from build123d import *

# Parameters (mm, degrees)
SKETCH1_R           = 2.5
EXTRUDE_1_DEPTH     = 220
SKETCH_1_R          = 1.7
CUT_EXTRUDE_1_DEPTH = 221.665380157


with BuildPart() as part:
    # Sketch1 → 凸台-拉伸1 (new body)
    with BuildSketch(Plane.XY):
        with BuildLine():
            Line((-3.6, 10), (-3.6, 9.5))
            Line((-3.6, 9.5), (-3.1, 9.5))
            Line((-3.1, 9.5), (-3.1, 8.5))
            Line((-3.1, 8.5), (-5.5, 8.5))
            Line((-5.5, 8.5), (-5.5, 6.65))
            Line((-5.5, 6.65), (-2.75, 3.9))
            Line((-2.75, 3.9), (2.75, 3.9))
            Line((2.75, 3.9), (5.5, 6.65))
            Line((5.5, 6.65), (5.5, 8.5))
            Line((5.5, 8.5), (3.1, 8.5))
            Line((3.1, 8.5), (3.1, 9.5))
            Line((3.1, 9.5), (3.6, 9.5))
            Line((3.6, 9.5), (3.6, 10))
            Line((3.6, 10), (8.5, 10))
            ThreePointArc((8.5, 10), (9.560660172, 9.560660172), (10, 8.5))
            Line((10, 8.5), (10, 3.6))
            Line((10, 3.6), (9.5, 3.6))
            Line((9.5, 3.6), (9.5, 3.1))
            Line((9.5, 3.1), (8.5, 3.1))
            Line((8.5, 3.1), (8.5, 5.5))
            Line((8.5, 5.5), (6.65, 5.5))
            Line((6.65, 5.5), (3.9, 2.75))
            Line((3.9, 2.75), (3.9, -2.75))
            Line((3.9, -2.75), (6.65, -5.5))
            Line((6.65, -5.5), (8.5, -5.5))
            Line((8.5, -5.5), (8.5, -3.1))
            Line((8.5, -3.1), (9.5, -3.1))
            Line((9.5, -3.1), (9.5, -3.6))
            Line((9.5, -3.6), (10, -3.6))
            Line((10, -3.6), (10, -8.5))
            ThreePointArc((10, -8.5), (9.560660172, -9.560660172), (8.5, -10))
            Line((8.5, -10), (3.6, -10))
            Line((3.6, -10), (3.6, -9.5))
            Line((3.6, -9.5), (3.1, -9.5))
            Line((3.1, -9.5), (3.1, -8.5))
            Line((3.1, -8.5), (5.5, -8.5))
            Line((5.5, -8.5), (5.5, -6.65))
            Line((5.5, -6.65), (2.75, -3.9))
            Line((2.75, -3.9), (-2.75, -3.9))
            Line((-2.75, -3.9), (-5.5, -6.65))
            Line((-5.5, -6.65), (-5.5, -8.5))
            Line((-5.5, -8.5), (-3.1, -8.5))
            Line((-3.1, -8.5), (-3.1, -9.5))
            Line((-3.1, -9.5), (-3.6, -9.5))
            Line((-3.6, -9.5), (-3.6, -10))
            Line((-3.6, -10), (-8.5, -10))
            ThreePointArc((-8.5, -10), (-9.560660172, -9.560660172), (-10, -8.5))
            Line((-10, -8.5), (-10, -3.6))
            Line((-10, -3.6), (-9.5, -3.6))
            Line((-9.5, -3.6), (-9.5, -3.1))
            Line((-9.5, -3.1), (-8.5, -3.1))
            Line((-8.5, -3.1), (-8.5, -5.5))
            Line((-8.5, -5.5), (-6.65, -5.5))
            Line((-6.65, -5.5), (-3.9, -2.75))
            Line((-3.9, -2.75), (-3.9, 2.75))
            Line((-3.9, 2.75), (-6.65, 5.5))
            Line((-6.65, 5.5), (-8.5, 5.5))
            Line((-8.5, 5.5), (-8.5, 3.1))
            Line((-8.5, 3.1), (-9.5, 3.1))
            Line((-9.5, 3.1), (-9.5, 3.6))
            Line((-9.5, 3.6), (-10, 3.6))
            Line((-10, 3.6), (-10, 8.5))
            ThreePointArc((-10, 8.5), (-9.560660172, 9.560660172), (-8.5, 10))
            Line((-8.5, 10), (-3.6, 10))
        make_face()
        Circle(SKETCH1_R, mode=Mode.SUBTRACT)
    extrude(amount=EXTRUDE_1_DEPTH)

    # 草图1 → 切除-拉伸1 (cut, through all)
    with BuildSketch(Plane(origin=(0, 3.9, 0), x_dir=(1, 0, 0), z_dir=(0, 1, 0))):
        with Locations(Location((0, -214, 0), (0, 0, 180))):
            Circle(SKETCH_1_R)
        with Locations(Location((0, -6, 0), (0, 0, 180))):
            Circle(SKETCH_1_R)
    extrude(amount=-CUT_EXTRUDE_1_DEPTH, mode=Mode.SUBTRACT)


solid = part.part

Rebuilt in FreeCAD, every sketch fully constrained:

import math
import FreeCAD as App
import Part
import Sketcher

V = App.Vector
Q = App.Units.Quantity

doc = App.newDocument("Part")
body = doc.addObject("PartDesign::Body", "Body")

sketch1 = body.newObject("Sketcher::SketchObject", "Sketch")
sketch1.AttachmentSupport = (doc.getObject("XY_Plane"), [""])
sketch1.MapMode = "FlatFace"
sketch1.addGeometry(Part.LineSegment(V(-3.6, 9.5, 0), V(-3.6, 10, 0)), False)
sketch1.addGeometry(Part.LineSegment(V(-3.6, 10, 0), V(-8.5, 10, 0)), False)
sketch1.addGeometry(Part.ArcOfCircle(Part.Circle(V(-8.5, 8.5, 0), V(0, 0, 1), 1.5), math.radians(90), math.radians(180)), False)
sketch1.addGeometry(Part.LineSegment(V(-10, 8.5, 0), V(-10, 3.6, 0)), False)
sketch1.addGeometry(Part.LineSegment(V(-10, 3.6, 0), V(-9.5, 3.6, 0)), False)
sketch1.addGeometry(Part.LineSegment(V(-9.5, 3.6, 0), V(-9.5, 3.1, 0)), False)
sketch1.addGeometry(Part.LineSegment(V(-9.5, 3.1, 0), V(-8.5, 3.1, 0)), False)
sketch1.addGeometry(Part.LineSegment(V(-8.5, 3.1, 0), V(-8.5, 5.5, 0)), False)
sketch1.addGeometry(Part.LineSegment(V(-8.5, 5.5, 0), V(-6.7, 5.5, 0)), False)
sketch1.addGeometry(Part.LineSegment(V(-6.7, 5.5, 0), V(-3.9, 2.8, 0)), False)
sketch1.addGeometry(Part.LineSegment(V(-3.9, 2.8, 0), V(-3.9, -2.8, 0)), False)
sketch1.addGeometry(Part.LineSegment(V(-3.9, -2.8, 0), V(-6.7, -5.5, 0)), False)
sketch1.addGeometry(Part.LineSegment(V(-6.7, -5.5, 0), V(-8.5, -5.5, 0)), False)
sketch1.addGeometry(Part.LineSegment(V(-8.5, -5.5, 0), V(-8.5, -3.1, 0)), False)
sketch1.addGeometry(Part.LineSegment(V(-8.5, -3.1, 0), V(-9.5, -3.1, 0)), False)
sketch1.addGeometry(Part.LineSegment(V(-9.5, -3.1, 0), V(-9.5, -3.6, 0)), False)
sketch1.addGeometry(Part.LineSegment(V(-9.5, -3.6, 0), V(-10, -3.6, 0)), False)
sketch1.addGeometry(Part.LineSegment(V(-10, -3.6, 0), V(-10, -8.5, 0)), False)
sketch1.addGeometry(Part.ArcOfCircle(Part.Circle(V(-8.5, -8.5, 0), V(0, 0, 1), 1.5), math.radians(180), math.radians(270)), False)
sketch1.addGeometry(Part.LineSegment(V(-8.5, -10, 0), V(-3.6, -10, 0)), False)
sketch1.addGeometry(Part.LineSegment(V(-3.6, -10, 0), V(-3.6, -9.5, 0)), False)
sketch1.addGeometry(Part.LineSegment(V(-3.6, -9.5, 0), V(-3.1, -9.5, 0)), False)
sketch1.addGeometry(Part.LineSegment(V(-3.1, -9.5, 0), V(-3.1, -8.5, 0)), False)
sketch1.addGeometry(Part.LineSegment(V(-3.1, -8.5, 0), V(-5.5, -8.5, 0)), False)
sketch1.addGeometry(Part.LineSegment(V(-5.5, -8.5, 0), V(-5.5, -6.7, 0)), False)
sketch1.addGeometry(Part.LineSegment(V(-5.5, -6.7, 0), V(-2.8, -3.9, 0)), False)
sketch1.addGeometry(Part.LineSegment(V(-2.8, -3.9, 0), V(2.8, -3.9, 0)), False)
sketch1.addGeometry(Part.LineSegment(V(2.8, -3.9, 0), V(5.5, -6.7, 0)), False)
sketch1.addGeometry(Part.LineSegment(V(5.5, -6.7, 0), V(5.5, -8.5, 0)), False)
sketch1.addGeometry(Part.LineSegment(V(5.5, -8.5, 0), V(3.1, -8.5, 0)), False)
sketch1.addGeometry(Part.LineSegment(V(3.1, -8.5, 0), V(3.1, -9.5, 0)), False)
sketch1.addGeometry(Part.LineSegment(V(3.1, -9.5, 0), V(3.6, -9.5, 0)), False)
sketch1.addGeometry(Part.LineSegment(V(3.6, -9.5, 0), V(3.6, -10, 0)), False)
sketch1.addGeometry(Part.LineSegment(V(3.6, -10, 0), V(8.5, -10, 0)), False)
sketch1.addGeometry(Part.ArcOfCircle(Part.Circle(V(8.5, -8.5, 0), V(0, 0, 1), 1.5), math.radians(-90), math.radians(0)), False)
sketch1.addGeometry(Part.LineSegment(V(10, -8.5, 0), V(10, -3.6, 0)), False)
sketch1.addGeometry(Part.LineSegment(V(10, -3.6, 0), V(9.5, -3.6, 0)), False)
sketch1.addGeometry(Part.LineSegment(V(9.5, -3.6, 0), V(9.5, -3.1, 0)), False)
sketch1.addGeometry(Part.LineSegment(V(9.5, -3.1, 0), V(8.5, -3.1, 0)), False)
sketch1.addGeometry(Part.LineSegment(V(8.5, -3.1, 0), V(8.5, -5.5, 0)), False)
sketch1.addGeometry(Part.LineSegment(V(8.5, -5.5, 0), V(6.7, -5.5, 0)), False)
sketch1.addGeometry(Part.LineSegment(V(6.7, -5.5, 0), V(3.9, -2.8, 0)), False)
sketch1.addGeometry(Part.LineSegment(V(3.9, -2.8, 0), V(3.9, 2.8, 0)), False)
sketch1.addGeometry(Part.LineSegment(V(3.9, 2.8, 0), V(6.7, 5.5, 0)), False)
sketch1.addGeometry(Part.LineSegment(V(6.7, 5.5, 0), V(8.5, 5.5, 0)), False)
sketch1.addGeometry(Part.LineSegment(V(8.5, 5.5, 0), V(8.5, 3.1, 0)), False)
sketch1.addGeometry(Part.LineSegment(V(8.5, 3.1, 0), V(9.5, 3.1, 0)), False)
sketch1.addGeometry(Part.LineSegment(V(9.5, 3.1, 0), V(9.5, 3.6, 0)), False)
sketch1.addGeometry(Part.LineSegment(V(9.5, 3.6, 0), V(10, 3.6, 0)), False)
sketch1.addGeometry(Part.LineSegment(V(10, 3.6, 0), V(10, 8.5, 0)), False)
sketch1.addGeometry(Part.ArcOfCircle(Part.Circle(V(8.5, 8.5, 0), V(0, 0, 1), 1.5), math.radians(0), math.radians(90)), False)
sketch1.addGeometry(Part.LineSegment(V(8.5, 10, 0), V(3.6, 10, 0)), False)
sketch1.addGeometry(Part.LineSegment(V(3.6, 10, 0), V(3.6, 9.5, 0)), False)
sketch1.addGeometry(Part.LineSegment(V(3.6, 9.5, 0), V(3.1, 9.5, 0)), False)
sketch1.addGeometry(Part.LineSegment(V(3.1, 9.5, 0), V(3.1, 8.5, 0)), False)
sketch1.addGeometry(Part.LineSegment(V(3.1, 8.5, 0), V(5.5, 8.5, 0)), False)
sketch1.addGeometry(Part.LineSegment(V(5.5, 8.5, 0), V(5.5, 6.7, 0)), False)
sketch1.addGeometry(Part.LineSegment(V(5.5, 6.7, 0), V(2.8, 3.9, 0)), False)
sketch1.addGeometry(Part.LineSegment(V(2.8, 3.9, 0), V(-2.8, 3.9, 0)), False)
sketch1.addGeometry(Part.LineSegment(V(-2.8, 3.9, 0), V(-5.5, 6.7, 0)), False)
sketch1.addGeometry(Part.LineSegment(V(-5.5, 6.7, 0), V(-5.5, 8.5, 0)), False)
sketch1.addGeometry(Part.LineSegment(V(-5.5, 8.5, 0), V(-3.1, 8.5, 0)), False)
sketch1.addGeometry(Part.LineSegment(V(-3.1, 8.5, 0), V(-3.1, 9.5, 0)), False)
sketch1.addGeometry(Part.LineSegment(V(-3.1, 9.5, 0), V(-3.6, 9.5, 0)), False)
sketch1.addGeometry(Part.Circle(V(0, 0, 0), V(0, 0, 1), 2.5), False)
sketch1.addConstraint(Sketcher.Constraint("Coincident", 0, 2, 1, 1))
sketch1.addConstraint(Sketcher.Constraint("Tangent", 1, 2, 2, 1))
sketch1.addConstraint(Sketcher.Constraint("Tangent", 2, 2, 3, 1))
sketch1.addConstraint(Sketcher.Constraint("Coincident", 3, 2, 4, 1))
sketch1.addConstraint(Sketcher.Constraint("Coincident", 4, 2, 5, 1))
sketch1.addConstraint(Sketcher.Constraint("Coincident", 5, 2, 6, 1))
sketch1.addConstraint(Sketcher.Constraint("Coincident", 6, 2, 7, 1))
sketch1.addConstraint(Sketcher.Constraint("Coincident", 7, 2, 8, 1))
sketch1.addConstraint(Sketcher.Constraint("Coincident", 8, 2, 9, 1))
sketch1.addConstraint(Sketcher.Constraint("Coincident", 9, 2, 10, 1))
sketch1.addConstraint(Sketcher.Constraint("Coincident", 10, 2, 11, 1))
sketch1.addConstraint(Sketcher.Constraint("Coincident", 11, 2, 12, 1))
sketch1.addConstraint(Sketcher.Constraint("Coincident", 12, 2, 13, 1))
sketch1.addConstraint(Sketcher.Constraint("Coincident", 13, 2, 14, 1))
sketch1.addConstraint(Sketcher.Constraint("Coincident", 14, 2, 15, 1))
sketch1.addConstraint(Sketcher.Constraint("Coincident", 15, 2, 16, 1))
sketch1.addConstraint(Sketcher.Constraint("Coincident", 16, 2, 17, 1))
sketch1.addConstraint(Sketcher.Constraint("Tangent", 17, 2, 18, 1))
sketch1.addConstraint(Sketcher.Constraint("Tangent", 18, 2, 19, 1))
sketch1.addConstraint(Sketcher.Constraint("Coincident", 19, 2, 20, 1))
sketch1.addConstraint(Sketcher.Constraint("Coincident", 20, 2, 21, 1))
sketch1.addConstraint(Sketcher.Constraint("Coincident", 21, 2, 22, 1))
sketch1.addConstraint(Sketcher.Constraint("Coincident", 22, 2, 23, 1))
sketch1.addConstraint(Sketcher.Constraint("Coincident", 23, 2, 24, 1))
sketch1.addConstraint(Sketcher.Constraint("Coincident", 24, 2, 25, 1))
sketch1.addConstraint(Sketcher.Constraint("Coincident", 25, 2, 26, 1))
sketch1.addConstraint(Sketcher.Constraint("Coincident", 26, 2, 27, 1))
sketch1.addConstraint(Sketcher.Constraint("Coincident", 27, 2, 28, 1))
sketch1.addConstraint(Sketcher.Constraint("Coincident", 28, 2, 29, 1))
sketch1.addConstraint(Sketcher.Constraint("Coincident", 29, 2, 30, 1))
sketch1.addConstraint(Sketcher.Constraint("Coincident", 30, 2, 31, 1))
sketch1.addConstraint(Sketcher.Constraint("Coincident", 31, 2, 32, 1))
sketch1.addConstraint(Sketcher.Constraint("Coincident", 32, 2, 33, 1))
sketch1.addConstraint(Sketcher.Constraint("Tangent", 33, 2, 34, 1))
sketch1.addConstraint(Sketcher.Constraint("Tangent", 34, 2, 35, 1))
sketch1.addConstraint(Sketcher.Constraint("Coincident", 35, 2, 36, 1))
sketch1.addConstraint(Sketcher.Constraint("Coincident", 36, 2, 37, 1))
sketch1.addConstraint(Sketcher.Constraint("Coincident", 37, 2, 38, 1))
sketch1.addConstraint(Sketcher.Constraint("Coincident", 38, 2, 39, 1))
sketch1.addConstraint(Sketcher.Constraint("Coincident", 39, 2, 40, 1))
sketch1.addConstraint(Sketcher.Constraint("Coincident", 40, 2, 41, 1))
sketch1.addConstraint(Sketcher.Constraint("Coincident", 41, 2, 42, 1))
sketch1.addConstraint(Sketcher.Constraint("Coincident", 42, 2, 43, 1))
sketch1.addConstraint(Sketcher.Constraint("Coincident", 43, 2, 44, 1))
sketch1.addConstraint(Sketcher.Constraint("Coincident", 44, 2, 45, 1))
sketch1.addConstraint(Sketcher.Constraint("Coincident", 45, 2, 46, 1))
sketch1.addConstraint(Sketcher.Constraint("Coincident", 46, 2, 47, 1))
sketch1.addConstraint(Sketcher.Constraint("Coincident", 47, 2, 48, 1))
sketch1.addConstraint(Sketcher.Constraint("Coincident", 48, 2, 49, 1))
sketch1.addConstraint(Sketcher.Constraint("Tangent", 49, 2, 50, 1))
sketch1.addConstraint(Sketcher.Constraint("Tangent", 50, 2, 51, 1))
sketch1.addConstraint(Sketcher.Constraint("Coincident", 51, 2, 52, 1))
sketch1.addConstraint(Sketcher.Constraint("Coincident", 52, 2, 53, 1))
sketch1.addConstraint(Sketcher.Constraint("Coincident", 53, 2, 54, 1))
sketch1.addConstraint(Sketcher.Constraint("Coincident", 54, 2, 55, 1))
sketch1.addConstraint(Sketcher.Constraint("Coincident", 55, 2, 56, 1))
sketch1.addConstraint(Sketcher.Constraint("Coincident", 56, 2, 57, 1))
sketch1.addConstraint(Sketcher.Constraint("Coincident", 57, 2, 58, 1))
sketch1.addConstraint(Sketcher.Constraint("Coincident", 58, 2, 59, 1))
sketch1.addConstraint(Sketcher.Constraint("Coincident", 59, 2, 60, 1))
sketch1.addConstraint(Sketcher.Constraint("Coincident", 60, 2, 61, 1))
sketch1.addConstraint(Sketcher.Constraint("Coincident", 61, 2, 62, 1))
sketch1.addConstraint(Sketcher.Constraint("Coincident", 62, 2, 63, 1))
sketch1.addConstraint(Sketcher.Constraint("Coincident", 63, 2, 0, 1))
sketch1.addConstraint(Sketcher.Constraint("Vertical", 0))
sketch1.addConstraint(Sketcher.Constraint("Horizontal", 1))
sketch1.addConstraint(Sketcher.Constraint("Vertical", 3))
sketch1.addConstraint(Sketcher.Constraint("Horizontal", 4))
sketch1.addConstraint(Sketcher.Constraint("Vertical", 5))
sketch1.addConstraint(Sketcher.Constraint("Horizontal", 6))
sketch1.addConstraint(Sketcher.Constraint("Vertical", 7))
sketch1.addConstraint(Sketcher.Constraint("Horizontal", 8))
sketch1.addConstraint(Sketcher.Constraint("Vertical", 10))
sketch1.addConstraint(Sketcher.Constraint("Horizontal", 12))
sketch1.addConstraint(Sketcher.Constraint("Vertical", 13))
sketch1.addConstraint(Sketcher.Constraint("Horizontal", 14))
sketch1.addConstraint(Sketcher.Constraint("Vertical", 15))
sketch1.addConstraint(Sketcher.Constraint("Horizontal", 16))
sketch1.addConstraint(Sketcher.Constraint("Vertical", 17))
sketch1.addConstraint(Sketcher.Constraint("Horizontal", 19))
sketch1.addConstraint(Sketcher.Constraint("Vertical", 20))
sketch1.addConstraint(Sketcher.Constraint("Horizontal", 21))
sketch1.addConstraint(Sketcher.Constraint("Vertical", 22))
sketch1.addConstraint(Sketcher.Constraint("Horizontal", 23))
sketch1.addConstraint(Sketcher.Constraint("Vertical", 24))
sketch1.addConstraint(Sketcher.Constraint("Horizontal", 26))
sketch1.addConstraint(Sketcher.Constraint("Vertical", 28))
sketch1.addConstraint(Sketcher.Constraint("Horizontal", 29))
sketch1.addConstraint(Sketcher.Constraint("Vertical", 30))
sketch1.addConstraint(Sketcher.Constraint("Horizontal", 31))
sketch1.addConstraint(Sketcher.Constraint("Vertical", 32))
sketch1.addConstraint(Sketcher.Constraint("Horizontal", 33))
sketch1.addConstraint(Sketcher.Constraint("Vertical", 35))
sketch1.addConstraint(Sketcher.Constraint("Horizontal", 36))
sketch1.addConstraint(Sketcher.Constraint("Vertical", 37))
sketch1.addConstraint(Sketcher.Constraint("Horizontal", 38))
sketch1.addConstraint(Sketcher.Constraint("Vertical", 39))
sketch1.addConstraint(Sketcher.Constraint("Horizontal", 40))
sketch1.addConstraint(Sketcher.Constraint("Vertical", 42))
sketch1.addConstraint(Sketcher.Constraint("Horizontal", 44))
sketch1.addConstraint(Sketcher.Constraint("Vertical", 45))
sketch1.addConstraint(Sketcher.Constraint("Horizontal", 46))
sketch1.addConstraint(Sketcher.Constraint("Vertical", 47))
sketch1.addConstraint(Sketcher.Constraint("Horizontal", 48))
sketch1.addConstraint(Sketcher.Constraint("Vertical", 49))
sketch1.addConstraint(Sketcher.Constraint("Horizontal", 51))
sketch1.addConstraint(Sketcher.Constraint("Vertical", 52))
sketch1.addConstraint(Sketcher.Constraint("Horizontal", 53))
sketch1.addConstraint(Sketcher.Constraint("Vertical", 54))
sketch1.addConstraint(Sketcher.Constraint("Horizontal", 55))
sketch1.addConstraint(Sketcher.Constraint("Vertical", 56))
sketch1.addConstraint(Sketcher.Constraint("Horizontal", 58))
sketch1.addConstraint(Sketcher.Constraint("Vertical", 60))
sketch1.addConstraint(Sketcher.Constraint("Horizontal", 61))
sketch1.addConstraint(Sketcher.Constraint("Vertical", 62))
sketch1.addConstraint(Sketcher.Constraint("Horizontal", 63))
sketch1.addConstraint(Sketcher.Constraint("Coincident", 64, 3, -1, 1))
sketch1.addConstraint(Sketcher.Constraint("Equal", 2, 18))
sketch1.addConstraint(Sketcher.Constraint("Equal", 18, 34))
sketch1.addConstraint(Sketcher.Constraint("Equal", 34, 50))
sketch1.addConstraint(Sketcher.Constraint("Symmetric", 2, 3, 34, 3, -1, 1))
sketch1.addConstraint(Sketcher.Constraint("Symmetric", 18, 3, 50, 3, -1, 1))
sketch1.addConstraint(Sketcher.Constraint("Symmetric", 4, 2, 36, 2, -1, 1))
sketch1.addConstraint(Sketcher.Constraint("Symmetric", 6, 2, 38, 2, -1, 1))
sketch1.addConstraint(Sketcher.Constraint("Symmetric", 8, 2, 40, 2, -1, 1))
sketch1.addConstraint(Sketcher.Constraint("Symmetric", 9, 2, 41, 2, -1, 1))
sketch1.addConstraint(Sketcher.Constraint("Symmetric", 11, 2, 43, 2, -1, 1))
sketch1.addConstraint(Sketcher.Constraint("Symmetric", 13, 2, 45, 2, -1, 1))
sketch1.addConstraint(Sketcher.Constraint("Symmetric", 15, 2, 47, 2, -1, 1))
sketch1.addConstraint(Sketcher.Constraint("Symmetric", 20, 2, 52, 2, -1, 1))
sketch1.addConstraint(Sketcher.Constraint("Symmetric", 22, 2, 54, 2, -1, 1))
sketch1.addConstraint(Sketcher.Constraint("Symmetric", 24, 2, 56, 2, -1, 1))
sketch1.addConstraint(Sketcher.Constraint("Symmetric", 25, 2, 57, 2, -1, 1))
sketch1.addConstraint(Sketcher.Constraint("Symmetric", 27, 2, 59, 2, -1, 1))
sketch1.addConstraint(Sketcher.Constraint("Symmetric", 29, 2, 61, 2, -1, 1))
sketch1.addConstraint(Sketcher.Constraint("Symmetric", 31, 2, 63, 2, -1, 1))
sketch1.addConstraint(Sketcher.Constraint("Symmetric", 18, 3, 34, 3, -2))
sketch1.addConstraint(Sketcher.Constraint("Symmetric", 24, 2, 27, 2, -2))
sketch1.addConstraint(Sketcher.Constraint("Symmetric", 22, 2, 29, 2, -2))
sketch1.addConstraint(Sketcher.Constraint("Symmetric", 20, 2, 31, 2, -2))
sketch1.addConstraint(Sketcher.Constraint("Symmetric", 15, 2, 36, 2, -2))
sketch1.addConstraint(Sketcher.Constraint("Symmetric", 13, 2, 38, 2, -2))
sketch1.addConstraint(Sketcher.Constraint("Symmetric", 11, 2, 40, 2, -2))
sketch1.addConstraint(Sketcher.Constraint("Perpendicular", 9, 11))
sketch1.addConstraint(Sketcher.Constraint("Parallel", 11, 25))
sketch1.addConstraint(Sketcher.Constraint("Perpendicular", 25, 27))
sketch1.addConstraint(Sketcher.Constraint("Perpendicular", 41, 43))
sketch1.addConstraint(Sketcher.Constraint("Perpendicular", 57, 59))
sketch1.addConstraint(Sketcher.Constraint("Horizontal", 17, 2, 22, 2))
sketch1.addConstraint(Sketcher.Constraint("Horizontal", 10, 2, 41, 2))
sketch1.addConstraint(Sketcher.Constraint("Vertical", 1, 2, 6, 2))
sketch1.addConstraint(Sketcher.Constraint("Equal", 16, 21))
sketch1.addConstraint(Sketcher.Constraint("Equal", 63, 0))
sketch1.addConstraint(Sketcher.Constraint("Equal", 51, 3))
sketch1.addConstraint(Sketcher.Constraint("Equal", 0, 5))
sketch1.addConstraint(Sketcher.Constraint("Equal", 61, 7))
sketch1.addConstraint(Sketcher.Constraint("Equal", 58, 10))
sketch1.addConstraint(Sketcher.Constraint("Equal", 44, 24))
sketch1.addConstraint(Sketcher.Constraint("Equal", 11, 25))
sketch1.addConstraint(Sketcher.Constraint("Diameter", 64, Q("5 mm")))
sketch1.addConstraint(Sketcher.Constraint("Radius", 2, Q("1.5 mm")))
sketch1.addConstraint(Sketcher.Constraint("DistanceX", 6, 1, 6, 2, Q("1 mm")))
sketch1.addConstraint(Sketcher.Constraint("DistanceX", 1, 2, 1, 1, Q("4.9 mm")))
sketch1.addConstraint(Sketcher.Constraint("DistanceX", 23, 2, 23, 1, Q("2.4 mm")))
sketch1.addConstraint(Sketcher.Constraint("DistanceX", 26, 1, 26, 2, Q("5.5 mm")))
sketch1.addConstraint(Sketcher.Constraint("DistanceY", -1, 1, 0, 2, Q("10 mm")))
sketch1.addConstraint(Sketcher.Constraint("DistanceX", 8, 1, 8, 2, Q("1.85 mm")))
pad1 = body.newObject("PartDesign::Pad", "Pad")
pad1.Profile = sketch1
pad1.Length = 220

sketch2 = body.newObject("Sketcher::SketchObject", "Sketch001")
sketch2.AttachmentSupport = (doc.getObject("XZ_Plane"), [""])
sketch2.MapMode = "FlatFace"
sketch2.AttachmentOffset = App.Placement(V(0, 0, -3.9), App.Rotation())
sketch2.addGeometry(Part.Circle(V(0, 214, 0), V(0, 0, 1), 1.7), False)
sketch2.addGeometry(Part.Circle(V(0, 6, 0), V(0, 0, 1), 1.7), False)
sketch2.addConstraint(Sketcher.Constraint("Equal", 0, 1))
sketch2.addConstraint(Sketcher.Constraint("PointOnObject", 0, 3, -2))
sketch2.addConstraint(Sketcher.Constraint("PointOnObject", 1, 3, -2))
sketch2.addConstraint(Sketcher.Constraint("Diameter", 0, Q("3.4 mm")))
sketch2.addConstraint(Sketcher.Constraint("DistanceY", -1, 1, 0, 3, Q("214 mm")))
sketch2.addConstraint(Sketcher.Constraint("DistanceY", -1, 1, 1, 3, Q("6 mm")))
pocket1 = body.newObject("PartDesign::Pocket", "Pocket")
pocket1.Profile = sketch2
pocket1.Type = "ThroughAll"
pocket1.Reversed = True

doc.recompute()
